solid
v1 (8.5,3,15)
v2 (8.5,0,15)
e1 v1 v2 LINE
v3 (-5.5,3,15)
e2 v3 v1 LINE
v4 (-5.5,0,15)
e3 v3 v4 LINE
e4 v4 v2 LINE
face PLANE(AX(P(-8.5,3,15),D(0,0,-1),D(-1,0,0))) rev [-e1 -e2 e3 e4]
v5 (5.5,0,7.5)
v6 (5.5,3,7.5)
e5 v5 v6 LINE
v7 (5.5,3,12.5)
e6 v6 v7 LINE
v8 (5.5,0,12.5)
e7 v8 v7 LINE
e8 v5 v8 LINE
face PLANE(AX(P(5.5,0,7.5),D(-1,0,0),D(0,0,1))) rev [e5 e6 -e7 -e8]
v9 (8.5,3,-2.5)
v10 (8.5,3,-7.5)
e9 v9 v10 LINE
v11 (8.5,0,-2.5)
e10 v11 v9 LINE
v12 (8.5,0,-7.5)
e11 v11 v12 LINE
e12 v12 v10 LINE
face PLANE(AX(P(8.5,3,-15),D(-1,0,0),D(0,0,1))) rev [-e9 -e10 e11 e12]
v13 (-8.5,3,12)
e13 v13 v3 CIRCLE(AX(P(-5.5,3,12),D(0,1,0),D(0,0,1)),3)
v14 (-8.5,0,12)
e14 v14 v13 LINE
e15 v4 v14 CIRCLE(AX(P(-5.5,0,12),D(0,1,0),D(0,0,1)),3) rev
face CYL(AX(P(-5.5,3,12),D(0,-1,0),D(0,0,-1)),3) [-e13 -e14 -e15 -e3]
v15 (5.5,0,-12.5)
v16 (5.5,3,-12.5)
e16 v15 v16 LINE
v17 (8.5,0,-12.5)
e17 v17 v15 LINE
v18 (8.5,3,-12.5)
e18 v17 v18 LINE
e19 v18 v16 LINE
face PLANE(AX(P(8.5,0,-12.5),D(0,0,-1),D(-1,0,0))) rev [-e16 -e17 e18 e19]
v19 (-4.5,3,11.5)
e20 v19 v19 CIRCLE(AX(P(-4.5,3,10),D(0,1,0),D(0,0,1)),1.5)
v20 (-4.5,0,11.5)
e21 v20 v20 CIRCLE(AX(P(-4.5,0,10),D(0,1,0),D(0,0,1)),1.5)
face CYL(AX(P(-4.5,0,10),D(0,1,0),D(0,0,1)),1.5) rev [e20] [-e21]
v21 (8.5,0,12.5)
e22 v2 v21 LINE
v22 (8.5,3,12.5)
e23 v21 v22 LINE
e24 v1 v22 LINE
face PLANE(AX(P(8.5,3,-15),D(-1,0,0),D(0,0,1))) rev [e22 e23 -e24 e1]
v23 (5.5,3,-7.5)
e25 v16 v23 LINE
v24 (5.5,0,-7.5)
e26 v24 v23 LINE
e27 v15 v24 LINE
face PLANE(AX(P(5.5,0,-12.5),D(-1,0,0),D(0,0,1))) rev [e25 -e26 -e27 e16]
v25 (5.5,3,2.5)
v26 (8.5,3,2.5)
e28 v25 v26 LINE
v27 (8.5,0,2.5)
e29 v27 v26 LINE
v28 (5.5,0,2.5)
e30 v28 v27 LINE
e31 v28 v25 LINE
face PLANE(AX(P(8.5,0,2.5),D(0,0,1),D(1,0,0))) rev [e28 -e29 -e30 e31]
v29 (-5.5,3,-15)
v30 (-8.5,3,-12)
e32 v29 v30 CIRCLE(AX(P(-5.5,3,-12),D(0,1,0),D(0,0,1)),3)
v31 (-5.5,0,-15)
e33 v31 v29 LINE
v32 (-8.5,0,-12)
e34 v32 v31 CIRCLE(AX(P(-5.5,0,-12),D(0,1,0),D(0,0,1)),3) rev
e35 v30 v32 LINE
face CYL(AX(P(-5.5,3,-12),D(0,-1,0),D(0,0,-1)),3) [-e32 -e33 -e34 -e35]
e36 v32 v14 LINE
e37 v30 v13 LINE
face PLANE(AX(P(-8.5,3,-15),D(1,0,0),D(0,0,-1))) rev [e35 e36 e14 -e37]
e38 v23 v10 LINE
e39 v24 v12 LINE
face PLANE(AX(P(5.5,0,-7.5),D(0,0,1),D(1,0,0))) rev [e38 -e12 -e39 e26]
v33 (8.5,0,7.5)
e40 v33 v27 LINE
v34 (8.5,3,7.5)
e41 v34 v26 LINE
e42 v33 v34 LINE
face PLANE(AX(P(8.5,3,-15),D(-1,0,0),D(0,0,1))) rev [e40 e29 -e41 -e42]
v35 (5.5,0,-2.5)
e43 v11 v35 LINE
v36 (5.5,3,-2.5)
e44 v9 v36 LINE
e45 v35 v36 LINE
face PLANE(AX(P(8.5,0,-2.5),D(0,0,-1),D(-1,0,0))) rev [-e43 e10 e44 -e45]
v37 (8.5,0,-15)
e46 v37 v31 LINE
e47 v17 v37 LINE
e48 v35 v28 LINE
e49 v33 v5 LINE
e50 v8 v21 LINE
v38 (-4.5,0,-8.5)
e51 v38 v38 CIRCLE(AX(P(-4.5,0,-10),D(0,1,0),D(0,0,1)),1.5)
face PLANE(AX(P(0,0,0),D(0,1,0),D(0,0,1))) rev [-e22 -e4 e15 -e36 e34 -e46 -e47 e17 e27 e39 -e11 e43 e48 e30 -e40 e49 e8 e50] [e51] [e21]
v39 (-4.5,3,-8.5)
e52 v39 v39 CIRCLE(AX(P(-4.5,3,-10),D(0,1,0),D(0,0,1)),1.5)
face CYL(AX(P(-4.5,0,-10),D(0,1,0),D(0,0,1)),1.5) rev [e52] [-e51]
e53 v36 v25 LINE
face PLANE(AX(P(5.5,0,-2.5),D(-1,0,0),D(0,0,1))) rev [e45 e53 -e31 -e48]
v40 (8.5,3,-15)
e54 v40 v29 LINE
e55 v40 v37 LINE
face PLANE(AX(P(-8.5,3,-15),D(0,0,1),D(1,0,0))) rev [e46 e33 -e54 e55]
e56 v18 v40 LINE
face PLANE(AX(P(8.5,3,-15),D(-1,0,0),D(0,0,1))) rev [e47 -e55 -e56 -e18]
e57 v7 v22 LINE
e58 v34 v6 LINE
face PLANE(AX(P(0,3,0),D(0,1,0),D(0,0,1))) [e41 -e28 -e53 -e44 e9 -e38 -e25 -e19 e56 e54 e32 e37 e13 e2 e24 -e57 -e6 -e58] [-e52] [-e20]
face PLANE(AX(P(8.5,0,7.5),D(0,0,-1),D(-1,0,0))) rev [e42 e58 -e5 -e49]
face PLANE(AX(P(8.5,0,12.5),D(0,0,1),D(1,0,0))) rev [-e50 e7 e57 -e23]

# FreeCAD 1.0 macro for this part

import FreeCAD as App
import Part
import Sketcher

V = App.Vector


def edges_at(feature, points):
    """Names of the edges that pass closest to the given points."""
    edges = feature.Shape.Edges
    near = lambda p: min(range(len(edges)), key=lambda i: edges[i].distToShape(Part.Vertex(*p))[0])
    return sorted({f"Edge{near(p) + 1}" for p in points})


def add_polygon(sketch, points):
    """Adds a closed chain of lines whose ends are joined by coincident constraints."""
    first, n = sketch.GeometryCount, len(points)
    for a, b in zip(points, points[1:] + points[:1]):
        sketch.addGeometry(Part.LineSegment(App.Vector(*a, 0), App.Vector(*b, 0)), False)
    for i in range(n):
        sketch.addConstraint(Sketcher.Constraint("Coincident", first + i, 2, first + (i + 1) % n, 1))

doc = App.newDocument("Part")
params = doc.addObject("Spreadsheet::Sheet", "Params")
for row, (alias, value) in enumerate([
    ("sketch1_width", "17 mm"),
    ("sketch1_height", "30 mm"),
    ("pad1_length", "3 mm"),
    ("sketch2_width", "3 mm"),
    ("sketch2_height", "5 mm"),
    ("pocket1_length", "3 mm"),
    ("sketch3_diameter", "3 mm"),
    ("pocket2_length", "3 mm"),
    ("fillet_radius", "3 mm"),
], start=1):
    params.set(f"A{row}", alias)
    params.set(f"B{row}", "=" + value)
    params.setAlias(f"B{row}", alias)

body = doc.addObject("PartDesign::Body", "Body")

sketch1 = body.newObject("Sketcher::SketchObject", "Sketch")
sketch1.AttachmentSupport = (doc.getObject("XZ_Plane"), [""])
sketch1.MapMode = "FlatFace"
add_polygon(sketch1, [(-8, -15), (-8, 15), (8, 15), (8, -15)])
sketch1.addConstraint(Sketcher.Constraint("Vertical", 0))
sketch1.addConstraint(Sketcher.Constraint("Horizontal", 1))
sketch1.addConstraint(Sketcher.Constraint("Vertical", 2))
sketch1.addConstraint(Sketcher.Constraint("Horizontal", 3))
sketch1.addConstraint(Sketcher.Constraint("Symmetric", 0, 2, 2, 2, -1, 1))
sketch1.addConstraint(Sketcher.Constraint("DistanceX", 1, 1, 1, 2, 17.0))
sketch1.addConstraint(Sketcher.Constraint("DistanceY", 0, 1, 0, 2, 30.0))
sketch1.setExpression("Constraints[9]", "Params.sketch1_width")
sketch1.setExpression("Constraints[10]", "Params.sketch1_height")
pad1 = body.newObject("PartDesign::Pad", "Pad")
pad1.Profile = sketch1
pad1.setExpression("Length", "Params.pad1_length")
pad1.Reversed = True

sketch2 = body.newObject("Sketcher::SketchObject", "Sketch001")
sketch2.AttachmentSupport = (doc.getObject("XZ_Plane"), [""])
sketch2.MapMode = "FlatFace"
sketch2.AttachmentOffset = App.Placement(V(0, 0, -3), App.Rotation())
add_polygon(sketch2, [(5.5, -12.5), (5.5, -7.5), (8.5, -7.5), (8.5, -12.5)])
add_polygon(sketch2, [(5.5, -2.5), (5.5, 2.5), (8.5, 2.5), (8.5, -2.5)])
add_polygon(sketch2, [(5.5, 7.5), (5.5, 12.5), (8.5, 12.5), (8.5, 7.5)])
sketch2.addConstraint(Sketcher.Constraint("Vertical", 0))
sketch2.addConstraint(Sketcher.Constraint("Horizontal", 1))
sketch2.addConstraint(Sketcher.Constraint("Vertical", 2))
sketch2.addConstraint(Sketcher.Constraint("Horizontal", 3))
sketch2.addConstraint(Sketcher.Constraint("Vertical", 4))
sketch2.addConstraint(Sketcher.Constraint("Horizontal", 5))
sketch2.addConstraint(Sketcher.Constraint("Vertical", 6))
sketch2.addConstraint(Sketcher.Constraint("Horizontal", 7))
sketch2.addConstraint(Sketcher.Constraint("Vertical", 8))
sketch2.addConstraint(Sketcher.Constraint("Horizontal", 9))
sketch2.addConstraint(Sketcher.Constraint("Vertical", 10))
sketch2.addConstraint(Sketcher.Constraint("Horizontal", 11))
sketch2.addConstraint(Sketcher.Constraint("Symmetric", 3, 2, 8, 2, -1))
sketch2.addConstraint(Sketcher.Constraint("Symmetric", 1, 2, 10, 2, -1))
sketch2.addConstraint(Sketcher.Constraint("Vertical", 3, 2, 4, 2))
sketch2.addConstraint(Sketcher.Constraint("Vertical", 2, 2, 5, 2))
sketch2.addConstraint(Sketcher.Constraint("Equal", 2, 4))
sketch2.addConstraint(Sketcher.Constraint("DistanceX", 1, 1, 1, 2, 3.0))
sketch2.addConstraint(Sketcher.Constraint("DistanceY", 0, 1, 0, 2, 5.0))
sketch2.addConstraint(Sketcher.Constraint("DistanceY", 0, 2, 4, 2, 10.0))
sketch2.addConstraint(Sketcher.Constraint("DistanceY", 4, 2, 8, 2, 10.0))
sketch2.addConstraint(Sketcher.Constraint("DistanceX", -1, 1, 0, 2, 5.5))
sketch2.setExpression("Constraints[29]", "Params.sketch2_width")
sketch2.setExpression("Constraints[30]", "Params.sketch2_height")
pocket1 = body.newObject("PartDesign::Pocket", "Pocket")
pocket1.Profile = sketch2
pocket1.setExpression("Length", "Params.pocket1_length")
pocket1.Reversed = True

sketch3 = body.newObject("Sketcher::SketchObject", "Sketch002")
sketch3.AttachmentSupport = (doc.getObject("XZ_Plane"), [""])
sketch3.MapMode = "FlatFace"
sketch3.AttachmentOffset = App.Placement(V(0, 0, -3), App.Rotation())
sketch3.addGeometry(Part.Circle(V(-4.5, -10, 0), V(0, 0, 1), 1.5), False)
sketch3.addGeometry(Part.Circle(V(-4.5, 10, 0), V(0, 0, 1), 1.5), False)
sketch3.addConstraint(Sketcher.Constraint("Equal", 0, 1))
sketch3.addConstraint(Sketcher.Constraint("Symmetric", 0, 3, 1, 3, -1))
sketch3.addConstraint(Sketcher.Constraint("Diameter", 0, 3.0))
sketch3.addConstraint(Sketcher.Constraint("DistanceY", 0, 3, -1, 1, 10.0))
sketch3.addConstraint(Sketcher.Constraint("DistanceX", 0, 3, -1, 1, 4.5))
sketch3.setExpression("Constraints[2]", "Params.sketch3_diameter")
pocket2 = body.newObject("PartDesign::Pocket", "Pocket001")
pocket2.Profile = sketch3
pocket2.setExpression("Length", "Params.pocket2_length")
pocket2.Reversed = True
doc.recompute()

fillet = body.newObject("PartDesign::Fillet", "Fillet")
fillet.Base = (pocket2, edges_at(pocket2, [(-8.5, 1.5, 15), (-8.5, 1.5, -15)]))
fillet.setExpression("Radius", "Params.fillet_radius")

doc.recompute()
